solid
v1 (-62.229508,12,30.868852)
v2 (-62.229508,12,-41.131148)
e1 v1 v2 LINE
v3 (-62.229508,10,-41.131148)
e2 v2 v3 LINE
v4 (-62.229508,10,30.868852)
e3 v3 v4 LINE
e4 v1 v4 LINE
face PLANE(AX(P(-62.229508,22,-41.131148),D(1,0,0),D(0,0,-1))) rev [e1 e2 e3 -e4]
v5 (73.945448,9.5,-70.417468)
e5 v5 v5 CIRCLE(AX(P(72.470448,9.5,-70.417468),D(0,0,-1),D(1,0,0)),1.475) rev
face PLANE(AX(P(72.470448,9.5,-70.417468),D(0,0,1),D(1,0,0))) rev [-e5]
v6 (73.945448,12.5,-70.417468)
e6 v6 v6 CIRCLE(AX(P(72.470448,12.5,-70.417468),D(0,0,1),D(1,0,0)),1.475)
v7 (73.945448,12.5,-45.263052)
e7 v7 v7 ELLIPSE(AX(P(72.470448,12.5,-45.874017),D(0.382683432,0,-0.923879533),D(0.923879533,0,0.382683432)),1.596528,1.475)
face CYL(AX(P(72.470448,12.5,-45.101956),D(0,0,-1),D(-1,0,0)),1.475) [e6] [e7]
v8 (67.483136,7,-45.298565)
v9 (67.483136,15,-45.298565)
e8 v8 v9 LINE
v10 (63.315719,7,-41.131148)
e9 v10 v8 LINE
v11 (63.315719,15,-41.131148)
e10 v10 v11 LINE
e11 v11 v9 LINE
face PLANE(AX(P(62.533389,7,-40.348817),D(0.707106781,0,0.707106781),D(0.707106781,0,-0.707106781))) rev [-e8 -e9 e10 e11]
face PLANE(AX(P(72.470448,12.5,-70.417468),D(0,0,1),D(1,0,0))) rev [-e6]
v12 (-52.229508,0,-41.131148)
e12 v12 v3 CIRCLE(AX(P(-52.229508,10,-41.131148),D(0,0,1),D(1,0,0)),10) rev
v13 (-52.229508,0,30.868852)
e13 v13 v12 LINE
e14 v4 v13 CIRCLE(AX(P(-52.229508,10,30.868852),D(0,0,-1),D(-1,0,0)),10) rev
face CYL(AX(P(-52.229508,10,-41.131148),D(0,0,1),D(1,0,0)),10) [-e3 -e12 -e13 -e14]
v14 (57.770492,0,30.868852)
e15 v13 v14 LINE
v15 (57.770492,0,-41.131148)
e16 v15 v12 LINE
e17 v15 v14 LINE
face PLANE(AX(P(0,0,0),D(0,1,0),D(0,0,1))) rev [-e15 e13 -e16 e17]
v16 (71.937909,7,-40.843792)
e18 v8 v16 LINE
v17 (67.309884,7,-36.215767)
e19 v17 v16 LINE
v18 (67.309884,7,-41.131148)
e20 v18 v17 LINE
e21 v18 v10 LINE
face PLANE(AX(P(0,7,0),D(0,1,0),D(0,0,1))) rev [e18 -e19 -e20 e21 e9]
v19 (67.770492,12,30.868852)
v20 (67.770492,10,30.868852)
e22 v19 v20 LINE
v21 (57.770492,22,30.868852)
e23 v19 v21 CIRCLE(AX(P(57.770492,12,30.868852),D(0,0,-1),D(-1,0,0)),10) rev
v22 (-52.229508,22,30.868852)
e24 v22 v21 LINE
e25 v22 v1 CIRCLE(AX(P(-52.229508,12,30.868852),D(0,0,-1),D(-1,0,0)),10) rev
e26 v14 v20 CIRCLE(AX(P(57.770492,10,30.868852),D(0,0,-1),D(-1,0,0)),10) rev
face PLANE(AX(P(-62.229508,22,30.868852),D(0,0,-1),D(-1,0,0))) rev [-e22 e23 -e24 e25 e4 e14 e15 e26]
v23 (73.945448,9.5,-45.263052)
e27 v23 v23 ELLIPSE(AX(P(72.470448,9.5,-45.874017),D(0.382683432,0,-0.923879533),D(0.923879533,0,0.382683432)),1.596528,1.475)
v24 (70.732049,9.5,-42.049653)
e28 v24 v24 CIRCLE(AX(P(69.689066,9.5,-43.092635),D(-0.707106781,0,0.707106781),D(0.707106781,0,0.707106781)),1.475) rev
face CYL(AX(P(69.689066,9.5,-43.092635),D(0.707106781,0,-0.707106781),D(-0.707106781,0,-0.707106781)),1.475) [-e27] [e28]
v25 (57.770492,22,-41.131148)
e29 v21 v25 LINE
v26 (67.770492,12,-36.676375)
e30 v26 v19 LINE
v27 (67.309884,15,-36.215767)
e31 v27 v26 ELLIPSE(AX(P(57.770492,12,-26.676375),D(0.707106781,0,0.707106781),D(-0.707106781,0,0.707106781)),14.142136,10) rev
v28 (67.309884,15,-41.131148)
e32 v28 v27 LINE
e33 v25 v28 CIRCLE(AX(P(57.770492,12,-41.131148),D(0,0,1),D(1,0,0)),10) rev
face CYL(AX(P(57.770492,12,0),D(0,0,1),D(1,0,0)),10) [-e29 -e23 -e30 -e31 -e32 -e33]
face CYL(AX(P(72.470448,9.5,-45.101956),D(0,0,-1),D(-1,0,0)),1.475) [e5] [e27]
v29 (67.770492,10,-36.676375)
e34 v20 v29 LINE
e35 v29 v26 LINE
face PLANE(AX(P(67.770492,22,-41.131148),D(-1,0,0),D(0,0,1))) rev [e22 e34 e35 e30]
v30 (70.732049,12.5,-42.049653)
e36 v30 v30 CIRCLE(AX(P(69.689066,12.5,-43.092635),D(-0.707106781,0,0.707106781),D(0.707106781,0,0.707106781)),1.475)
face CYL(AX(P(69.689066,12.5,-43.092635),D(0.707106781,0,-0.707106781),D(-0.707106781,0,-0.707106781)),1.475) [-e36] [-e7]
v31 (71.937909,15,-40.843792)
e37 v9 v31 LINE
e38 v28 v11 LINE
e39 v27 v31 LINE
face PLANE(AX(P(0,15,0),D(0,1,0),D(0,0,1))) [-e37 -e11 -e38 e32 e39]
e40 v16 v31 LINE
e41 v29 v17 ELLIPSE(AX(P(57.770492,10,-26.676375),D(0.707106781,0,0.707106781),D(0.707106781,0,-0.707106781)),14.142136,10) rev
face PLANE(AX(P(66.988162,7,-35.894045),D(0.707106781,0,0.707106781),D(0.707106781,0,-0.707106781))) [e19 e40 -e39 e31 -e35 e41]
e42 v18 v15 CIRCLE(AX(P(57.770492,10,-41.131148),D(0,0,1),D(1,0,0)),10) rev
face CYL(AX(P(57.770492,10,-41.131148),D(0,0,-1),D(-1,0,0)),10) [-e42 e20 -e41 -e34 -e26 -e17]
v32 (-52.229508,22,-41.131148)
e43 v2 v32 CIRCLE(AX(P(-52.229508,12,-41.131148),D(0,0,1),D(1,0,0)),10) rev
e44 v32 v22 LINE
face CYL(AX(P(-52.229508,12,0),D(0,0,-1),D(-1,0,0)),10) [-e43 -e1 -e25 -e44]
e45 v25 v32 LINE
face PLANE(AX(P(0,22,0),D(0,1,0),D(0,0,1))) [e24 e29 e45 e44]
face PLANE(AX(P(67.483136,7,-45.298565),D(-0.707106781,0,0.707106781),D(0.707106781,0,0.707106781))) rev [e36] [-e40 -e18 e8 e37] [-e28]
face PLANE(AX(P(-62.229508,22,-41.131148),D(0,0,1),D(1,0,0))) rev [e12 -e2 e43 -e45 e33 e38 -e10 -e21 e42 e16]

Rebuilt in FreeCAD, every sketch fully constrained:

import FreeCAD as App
import Part
import Sketcher
Q = App.Units.Quantity


def edges_at(feature, points):
    """Names of the edges that pass closest to the given points."""
    edges = feature.Shape.Edges
    near = lambda p: min(range(len(edges)), key=lambda i: edges[i].distToShape(Part.Vertex(*p))[0])
    return sorted({f"Edge{near(p) + 1}" for p in points})


def add_polygon(sketch, points):
    """Adds a closed chain of lines whose ends are joined by coincident constraints."""
    first, n = sketch.GeometryCount, len(points)
    for a, b in zip(points, points[1:] + points[:1]):
        sketch.addGeometry(Part.LineSegment(App.Vector(*a, 0), App.Vector(*b, 0)), False)
    for i in range(n):
        sketch.addConstraint(Sketcher.Constraint("Coincident", first + i, 2, first + (i + 1) % n, 1))

doc = App.newDocument("Part")
params = doc.addObject("Spreadsheet::Sheet", "Params")
for row, (alias, value) in enumerate([
    ("sketch1_width", "130 mm"),
    ("sketch1_height", "72 mm"),
    ("pad1_length", "22 mm"),
    ("fillet_radius", "10 mm"),
    ("sketch2_length", "7 mm"),
    ("sketch2_length2", "6.3 mm"),
    ("pad2_length", "8 mm"),
    ("sketch3_diameter", "2.95 mm"),
], start=1):
    params.set(f"A{row}", alias)
    params.set(f"B{row}", "=" + value)
    params.setAlias(f"B{row}", alias)

body = doc.addObject("PartDesign::Body", "Body")

# Sketch on XZ plane
sketch1 = body.newObject("Sketcher::SketchObject", "Sketch")
sketch1.AttachmentSupport = (doc.getObject("XZ_Plane"), [""])
sketch1.MapMode = "FlatFace"
add_polygon(sketch1, [(-62, -41), (-62, 31), (68, 31), (68, -41)])  # lines 0-3
sketch1.addConstraint(Sketcher.Constraint("Vertical", 0))
sketch1.addConstraint(Sketcher.Constraint("Horizontal", 1))
sketch1.addConstraint(Sketcher.Constraint("Vertical", 2))
sketch1.addConstraint(Sketcher.Constraint("Horizontal", 3))
sketch1.addConstraint(Sketcher.Constraint("DistanceX", 1, 1, 1, 2, 130.0))
sketch1.addConstraint(Sketcher.Constraint("DistanceY", 0, 1, 0, 2, 72.0))
sketch1.addConstraint(Sketcher.Constraint("DistanceX", 0, 2, -1, 1, 62.229508))
sketch1.addConstraint(Sketcher.Constraint("DistanceY", -1, 1, 0, 2, 30.868852))
sketch1.setExpression("Constraints[8]", "Params.sketch1_width")
sketch1.setExpression("Constraints[9]", "Params.sketch1_height")
pad1 = body.newObject("PartDesign::Pad", "Pad")
pad1.Profile = sketch1
pad1.setExpression("Length", "Params.pad1_length")
pad1.Reversed = True
doc.recompute()

fillet = body.newObject("PartDesign::Fillet", "Fillet")
fillet.Base = (pad1, edges_at(pad1, [
    (67.77, 22, -5.131),
    (-62.23, 22, -5.131),
    (67.77, 0, -5.131),
    (-62.23, 0, -5.131),
]))
fillet.setExpression("Radius", "Params.fillet_radius")

# Sketch on XZ plane
sketch2 = body.newObject("Sketcher::SketchObject", "Sketch001")
sketch2.AttachmentSupport = (doc.getObject("XZ_Plane"), [""])
sketch2.MapMode = "FlatFace"
sketch2.AttachmentOffset = App.Placement(App.Vector(0, 0, -11), App.Rotation())
add_polygon(sketch2, [(67, -36), (63, -40), (67, -45), (72, -41)])  # lines 0-3
sketch2.addConstraint(Sketcher.Constraint("Perpendicular", 0, 1))
sketch2.addConstraint(Sketcher.Constraint("Perpendicular", 1, 2))
sketch2.addConstraint(Sketcher.Constraint("Perpendicular", 2, 3))
sketch2.addConstraint(Sketcher.Constraint("Angle", 0, Q("-135 deg")))
sketch2.addConstraint(Sketcher.Constraint("Distance", 1, 7.0))
sketch2.addConstraint(Sketcher.Constraint("Distance", 0, 6.3))
sketch2.addConstraint(Sketcher.Constraint("DistanceX", -1, 1, 0, 2, 62.533389))
sketch2.addConstraint(Sketcher.Constraint("DistanceY", 0, 2, -1, 1, 40.348817))
sketch2.setExpression("Constraints[8]", "Params.sketch2_length")
sketch2.setExpression("Constraints[9]", "Params.sketch2_length2")
pad2 = body.newObject("PartDesign::Pad", "Pad001")
pad2.Profile = sketch2
pad2.setExpression("Length", "Params.pad2_length")
pad2.Midplane = True

# Sketch on an angled plane
sketch3 = body.newObject("Sketcher::SketchObject", "Sketch002")
sketch3.Placement = App.Placement(App.Vector(69.689066, 12.5, -43.092635), App.Rotation(App.Vector(-0.707106781, 0, -0.707106781), App.Vector(0, 0.999999999, 0), App.Vector(0.707106781, 0, -0.707106781), "ZXY"))
sketch3.addGeometry(Part.Circle(App.Vector(0, 0, 0), App.Vector(0, 0, 1), 1.5), False)
sketch3.addConstraint(Sketcher.Constraint("Coincident", 0, 3, -1, 1))
sketch3.addConstraint(Sketcher.Constraint("Diameter", 0, 2.95))
sketch3.setExpression("Constraints[1]", "Params.sketch3_diameter")

# Sketch on XZ plane
sketch4 = body.newObject("Sketcher::SketchObject", "Sketch003")
sketch4.AttachmentSupport = (doc.getObject("XZ_Plane"), [""])
sketch4.MapMode = "FlatFace"
sketch4.AttachmentOffset = App.Placement(App.Vector(0, 0, -12.5), App.Rotation())
sketch4.addGeometry(Part.LineSegment(App.Vector(69.7, -43.1, 0), App.Vector(72.5, -45.9, 0)), False)
sketch4.addGeometry(Part.LineSegment(App.Vector(72.5, -45.9, 0), App.Vector(72.5, -70.4, 0)), False)
sketch4.addConstraint(Sketcher.Constraint("Coincident", 0, 2, 1, 1))
sketch4.addConstraint(Sketcher.Constraint("Vertical", 1))
sketch4.addConstraint(Sketcher.Constraint("Angle", 0, Q("-45 deg")))
sketch4.addConstraint(Sketcher.Constraint("DistanceY", 1, 2, 1, 1, 24.54345))
sketch4.addConstraint(Sketcher.Constraint("Distance", 0, 3.933468))
sketch4.addConstraint(Sketcher.Constraint("DistanceX", -1, 1, 0, 2, 72.470448))
sketch4.addConstraint(Sketcher.Constraint("DistanceY", 0, 1, -1, 1, 43.092635))
doc.recompute()

additivepipe = body.newObject("PartDesign::AdditivePipe", "AdditivePipe")
additivepipe.Profile = sketch3
additivepipe.Spine = (sketch4, ["Edge1", "Edge2"])
additivepipe.Transition = "Right corner"
doc.recompute()

datumplane = body.newObject("PartDesign::Plane", "DatumPlane")
datumplane.AttachmentSupport = (doc.getObject("XZ_Plane"), [""])
datumplane.MapMode = "FlatFace"
datumplane.AttachmentOffset = App.Placement(App.Vector(0, 0, -11), App.Rotation())
mirrored = body.newObject("PartDesign::Mirrored", "Mirrored")
mirrored.Originals = [additivepipe]
mirrored.MirrorPlane = (datumplane, [""])
body.Tip = mirrored

doc.recompute()
